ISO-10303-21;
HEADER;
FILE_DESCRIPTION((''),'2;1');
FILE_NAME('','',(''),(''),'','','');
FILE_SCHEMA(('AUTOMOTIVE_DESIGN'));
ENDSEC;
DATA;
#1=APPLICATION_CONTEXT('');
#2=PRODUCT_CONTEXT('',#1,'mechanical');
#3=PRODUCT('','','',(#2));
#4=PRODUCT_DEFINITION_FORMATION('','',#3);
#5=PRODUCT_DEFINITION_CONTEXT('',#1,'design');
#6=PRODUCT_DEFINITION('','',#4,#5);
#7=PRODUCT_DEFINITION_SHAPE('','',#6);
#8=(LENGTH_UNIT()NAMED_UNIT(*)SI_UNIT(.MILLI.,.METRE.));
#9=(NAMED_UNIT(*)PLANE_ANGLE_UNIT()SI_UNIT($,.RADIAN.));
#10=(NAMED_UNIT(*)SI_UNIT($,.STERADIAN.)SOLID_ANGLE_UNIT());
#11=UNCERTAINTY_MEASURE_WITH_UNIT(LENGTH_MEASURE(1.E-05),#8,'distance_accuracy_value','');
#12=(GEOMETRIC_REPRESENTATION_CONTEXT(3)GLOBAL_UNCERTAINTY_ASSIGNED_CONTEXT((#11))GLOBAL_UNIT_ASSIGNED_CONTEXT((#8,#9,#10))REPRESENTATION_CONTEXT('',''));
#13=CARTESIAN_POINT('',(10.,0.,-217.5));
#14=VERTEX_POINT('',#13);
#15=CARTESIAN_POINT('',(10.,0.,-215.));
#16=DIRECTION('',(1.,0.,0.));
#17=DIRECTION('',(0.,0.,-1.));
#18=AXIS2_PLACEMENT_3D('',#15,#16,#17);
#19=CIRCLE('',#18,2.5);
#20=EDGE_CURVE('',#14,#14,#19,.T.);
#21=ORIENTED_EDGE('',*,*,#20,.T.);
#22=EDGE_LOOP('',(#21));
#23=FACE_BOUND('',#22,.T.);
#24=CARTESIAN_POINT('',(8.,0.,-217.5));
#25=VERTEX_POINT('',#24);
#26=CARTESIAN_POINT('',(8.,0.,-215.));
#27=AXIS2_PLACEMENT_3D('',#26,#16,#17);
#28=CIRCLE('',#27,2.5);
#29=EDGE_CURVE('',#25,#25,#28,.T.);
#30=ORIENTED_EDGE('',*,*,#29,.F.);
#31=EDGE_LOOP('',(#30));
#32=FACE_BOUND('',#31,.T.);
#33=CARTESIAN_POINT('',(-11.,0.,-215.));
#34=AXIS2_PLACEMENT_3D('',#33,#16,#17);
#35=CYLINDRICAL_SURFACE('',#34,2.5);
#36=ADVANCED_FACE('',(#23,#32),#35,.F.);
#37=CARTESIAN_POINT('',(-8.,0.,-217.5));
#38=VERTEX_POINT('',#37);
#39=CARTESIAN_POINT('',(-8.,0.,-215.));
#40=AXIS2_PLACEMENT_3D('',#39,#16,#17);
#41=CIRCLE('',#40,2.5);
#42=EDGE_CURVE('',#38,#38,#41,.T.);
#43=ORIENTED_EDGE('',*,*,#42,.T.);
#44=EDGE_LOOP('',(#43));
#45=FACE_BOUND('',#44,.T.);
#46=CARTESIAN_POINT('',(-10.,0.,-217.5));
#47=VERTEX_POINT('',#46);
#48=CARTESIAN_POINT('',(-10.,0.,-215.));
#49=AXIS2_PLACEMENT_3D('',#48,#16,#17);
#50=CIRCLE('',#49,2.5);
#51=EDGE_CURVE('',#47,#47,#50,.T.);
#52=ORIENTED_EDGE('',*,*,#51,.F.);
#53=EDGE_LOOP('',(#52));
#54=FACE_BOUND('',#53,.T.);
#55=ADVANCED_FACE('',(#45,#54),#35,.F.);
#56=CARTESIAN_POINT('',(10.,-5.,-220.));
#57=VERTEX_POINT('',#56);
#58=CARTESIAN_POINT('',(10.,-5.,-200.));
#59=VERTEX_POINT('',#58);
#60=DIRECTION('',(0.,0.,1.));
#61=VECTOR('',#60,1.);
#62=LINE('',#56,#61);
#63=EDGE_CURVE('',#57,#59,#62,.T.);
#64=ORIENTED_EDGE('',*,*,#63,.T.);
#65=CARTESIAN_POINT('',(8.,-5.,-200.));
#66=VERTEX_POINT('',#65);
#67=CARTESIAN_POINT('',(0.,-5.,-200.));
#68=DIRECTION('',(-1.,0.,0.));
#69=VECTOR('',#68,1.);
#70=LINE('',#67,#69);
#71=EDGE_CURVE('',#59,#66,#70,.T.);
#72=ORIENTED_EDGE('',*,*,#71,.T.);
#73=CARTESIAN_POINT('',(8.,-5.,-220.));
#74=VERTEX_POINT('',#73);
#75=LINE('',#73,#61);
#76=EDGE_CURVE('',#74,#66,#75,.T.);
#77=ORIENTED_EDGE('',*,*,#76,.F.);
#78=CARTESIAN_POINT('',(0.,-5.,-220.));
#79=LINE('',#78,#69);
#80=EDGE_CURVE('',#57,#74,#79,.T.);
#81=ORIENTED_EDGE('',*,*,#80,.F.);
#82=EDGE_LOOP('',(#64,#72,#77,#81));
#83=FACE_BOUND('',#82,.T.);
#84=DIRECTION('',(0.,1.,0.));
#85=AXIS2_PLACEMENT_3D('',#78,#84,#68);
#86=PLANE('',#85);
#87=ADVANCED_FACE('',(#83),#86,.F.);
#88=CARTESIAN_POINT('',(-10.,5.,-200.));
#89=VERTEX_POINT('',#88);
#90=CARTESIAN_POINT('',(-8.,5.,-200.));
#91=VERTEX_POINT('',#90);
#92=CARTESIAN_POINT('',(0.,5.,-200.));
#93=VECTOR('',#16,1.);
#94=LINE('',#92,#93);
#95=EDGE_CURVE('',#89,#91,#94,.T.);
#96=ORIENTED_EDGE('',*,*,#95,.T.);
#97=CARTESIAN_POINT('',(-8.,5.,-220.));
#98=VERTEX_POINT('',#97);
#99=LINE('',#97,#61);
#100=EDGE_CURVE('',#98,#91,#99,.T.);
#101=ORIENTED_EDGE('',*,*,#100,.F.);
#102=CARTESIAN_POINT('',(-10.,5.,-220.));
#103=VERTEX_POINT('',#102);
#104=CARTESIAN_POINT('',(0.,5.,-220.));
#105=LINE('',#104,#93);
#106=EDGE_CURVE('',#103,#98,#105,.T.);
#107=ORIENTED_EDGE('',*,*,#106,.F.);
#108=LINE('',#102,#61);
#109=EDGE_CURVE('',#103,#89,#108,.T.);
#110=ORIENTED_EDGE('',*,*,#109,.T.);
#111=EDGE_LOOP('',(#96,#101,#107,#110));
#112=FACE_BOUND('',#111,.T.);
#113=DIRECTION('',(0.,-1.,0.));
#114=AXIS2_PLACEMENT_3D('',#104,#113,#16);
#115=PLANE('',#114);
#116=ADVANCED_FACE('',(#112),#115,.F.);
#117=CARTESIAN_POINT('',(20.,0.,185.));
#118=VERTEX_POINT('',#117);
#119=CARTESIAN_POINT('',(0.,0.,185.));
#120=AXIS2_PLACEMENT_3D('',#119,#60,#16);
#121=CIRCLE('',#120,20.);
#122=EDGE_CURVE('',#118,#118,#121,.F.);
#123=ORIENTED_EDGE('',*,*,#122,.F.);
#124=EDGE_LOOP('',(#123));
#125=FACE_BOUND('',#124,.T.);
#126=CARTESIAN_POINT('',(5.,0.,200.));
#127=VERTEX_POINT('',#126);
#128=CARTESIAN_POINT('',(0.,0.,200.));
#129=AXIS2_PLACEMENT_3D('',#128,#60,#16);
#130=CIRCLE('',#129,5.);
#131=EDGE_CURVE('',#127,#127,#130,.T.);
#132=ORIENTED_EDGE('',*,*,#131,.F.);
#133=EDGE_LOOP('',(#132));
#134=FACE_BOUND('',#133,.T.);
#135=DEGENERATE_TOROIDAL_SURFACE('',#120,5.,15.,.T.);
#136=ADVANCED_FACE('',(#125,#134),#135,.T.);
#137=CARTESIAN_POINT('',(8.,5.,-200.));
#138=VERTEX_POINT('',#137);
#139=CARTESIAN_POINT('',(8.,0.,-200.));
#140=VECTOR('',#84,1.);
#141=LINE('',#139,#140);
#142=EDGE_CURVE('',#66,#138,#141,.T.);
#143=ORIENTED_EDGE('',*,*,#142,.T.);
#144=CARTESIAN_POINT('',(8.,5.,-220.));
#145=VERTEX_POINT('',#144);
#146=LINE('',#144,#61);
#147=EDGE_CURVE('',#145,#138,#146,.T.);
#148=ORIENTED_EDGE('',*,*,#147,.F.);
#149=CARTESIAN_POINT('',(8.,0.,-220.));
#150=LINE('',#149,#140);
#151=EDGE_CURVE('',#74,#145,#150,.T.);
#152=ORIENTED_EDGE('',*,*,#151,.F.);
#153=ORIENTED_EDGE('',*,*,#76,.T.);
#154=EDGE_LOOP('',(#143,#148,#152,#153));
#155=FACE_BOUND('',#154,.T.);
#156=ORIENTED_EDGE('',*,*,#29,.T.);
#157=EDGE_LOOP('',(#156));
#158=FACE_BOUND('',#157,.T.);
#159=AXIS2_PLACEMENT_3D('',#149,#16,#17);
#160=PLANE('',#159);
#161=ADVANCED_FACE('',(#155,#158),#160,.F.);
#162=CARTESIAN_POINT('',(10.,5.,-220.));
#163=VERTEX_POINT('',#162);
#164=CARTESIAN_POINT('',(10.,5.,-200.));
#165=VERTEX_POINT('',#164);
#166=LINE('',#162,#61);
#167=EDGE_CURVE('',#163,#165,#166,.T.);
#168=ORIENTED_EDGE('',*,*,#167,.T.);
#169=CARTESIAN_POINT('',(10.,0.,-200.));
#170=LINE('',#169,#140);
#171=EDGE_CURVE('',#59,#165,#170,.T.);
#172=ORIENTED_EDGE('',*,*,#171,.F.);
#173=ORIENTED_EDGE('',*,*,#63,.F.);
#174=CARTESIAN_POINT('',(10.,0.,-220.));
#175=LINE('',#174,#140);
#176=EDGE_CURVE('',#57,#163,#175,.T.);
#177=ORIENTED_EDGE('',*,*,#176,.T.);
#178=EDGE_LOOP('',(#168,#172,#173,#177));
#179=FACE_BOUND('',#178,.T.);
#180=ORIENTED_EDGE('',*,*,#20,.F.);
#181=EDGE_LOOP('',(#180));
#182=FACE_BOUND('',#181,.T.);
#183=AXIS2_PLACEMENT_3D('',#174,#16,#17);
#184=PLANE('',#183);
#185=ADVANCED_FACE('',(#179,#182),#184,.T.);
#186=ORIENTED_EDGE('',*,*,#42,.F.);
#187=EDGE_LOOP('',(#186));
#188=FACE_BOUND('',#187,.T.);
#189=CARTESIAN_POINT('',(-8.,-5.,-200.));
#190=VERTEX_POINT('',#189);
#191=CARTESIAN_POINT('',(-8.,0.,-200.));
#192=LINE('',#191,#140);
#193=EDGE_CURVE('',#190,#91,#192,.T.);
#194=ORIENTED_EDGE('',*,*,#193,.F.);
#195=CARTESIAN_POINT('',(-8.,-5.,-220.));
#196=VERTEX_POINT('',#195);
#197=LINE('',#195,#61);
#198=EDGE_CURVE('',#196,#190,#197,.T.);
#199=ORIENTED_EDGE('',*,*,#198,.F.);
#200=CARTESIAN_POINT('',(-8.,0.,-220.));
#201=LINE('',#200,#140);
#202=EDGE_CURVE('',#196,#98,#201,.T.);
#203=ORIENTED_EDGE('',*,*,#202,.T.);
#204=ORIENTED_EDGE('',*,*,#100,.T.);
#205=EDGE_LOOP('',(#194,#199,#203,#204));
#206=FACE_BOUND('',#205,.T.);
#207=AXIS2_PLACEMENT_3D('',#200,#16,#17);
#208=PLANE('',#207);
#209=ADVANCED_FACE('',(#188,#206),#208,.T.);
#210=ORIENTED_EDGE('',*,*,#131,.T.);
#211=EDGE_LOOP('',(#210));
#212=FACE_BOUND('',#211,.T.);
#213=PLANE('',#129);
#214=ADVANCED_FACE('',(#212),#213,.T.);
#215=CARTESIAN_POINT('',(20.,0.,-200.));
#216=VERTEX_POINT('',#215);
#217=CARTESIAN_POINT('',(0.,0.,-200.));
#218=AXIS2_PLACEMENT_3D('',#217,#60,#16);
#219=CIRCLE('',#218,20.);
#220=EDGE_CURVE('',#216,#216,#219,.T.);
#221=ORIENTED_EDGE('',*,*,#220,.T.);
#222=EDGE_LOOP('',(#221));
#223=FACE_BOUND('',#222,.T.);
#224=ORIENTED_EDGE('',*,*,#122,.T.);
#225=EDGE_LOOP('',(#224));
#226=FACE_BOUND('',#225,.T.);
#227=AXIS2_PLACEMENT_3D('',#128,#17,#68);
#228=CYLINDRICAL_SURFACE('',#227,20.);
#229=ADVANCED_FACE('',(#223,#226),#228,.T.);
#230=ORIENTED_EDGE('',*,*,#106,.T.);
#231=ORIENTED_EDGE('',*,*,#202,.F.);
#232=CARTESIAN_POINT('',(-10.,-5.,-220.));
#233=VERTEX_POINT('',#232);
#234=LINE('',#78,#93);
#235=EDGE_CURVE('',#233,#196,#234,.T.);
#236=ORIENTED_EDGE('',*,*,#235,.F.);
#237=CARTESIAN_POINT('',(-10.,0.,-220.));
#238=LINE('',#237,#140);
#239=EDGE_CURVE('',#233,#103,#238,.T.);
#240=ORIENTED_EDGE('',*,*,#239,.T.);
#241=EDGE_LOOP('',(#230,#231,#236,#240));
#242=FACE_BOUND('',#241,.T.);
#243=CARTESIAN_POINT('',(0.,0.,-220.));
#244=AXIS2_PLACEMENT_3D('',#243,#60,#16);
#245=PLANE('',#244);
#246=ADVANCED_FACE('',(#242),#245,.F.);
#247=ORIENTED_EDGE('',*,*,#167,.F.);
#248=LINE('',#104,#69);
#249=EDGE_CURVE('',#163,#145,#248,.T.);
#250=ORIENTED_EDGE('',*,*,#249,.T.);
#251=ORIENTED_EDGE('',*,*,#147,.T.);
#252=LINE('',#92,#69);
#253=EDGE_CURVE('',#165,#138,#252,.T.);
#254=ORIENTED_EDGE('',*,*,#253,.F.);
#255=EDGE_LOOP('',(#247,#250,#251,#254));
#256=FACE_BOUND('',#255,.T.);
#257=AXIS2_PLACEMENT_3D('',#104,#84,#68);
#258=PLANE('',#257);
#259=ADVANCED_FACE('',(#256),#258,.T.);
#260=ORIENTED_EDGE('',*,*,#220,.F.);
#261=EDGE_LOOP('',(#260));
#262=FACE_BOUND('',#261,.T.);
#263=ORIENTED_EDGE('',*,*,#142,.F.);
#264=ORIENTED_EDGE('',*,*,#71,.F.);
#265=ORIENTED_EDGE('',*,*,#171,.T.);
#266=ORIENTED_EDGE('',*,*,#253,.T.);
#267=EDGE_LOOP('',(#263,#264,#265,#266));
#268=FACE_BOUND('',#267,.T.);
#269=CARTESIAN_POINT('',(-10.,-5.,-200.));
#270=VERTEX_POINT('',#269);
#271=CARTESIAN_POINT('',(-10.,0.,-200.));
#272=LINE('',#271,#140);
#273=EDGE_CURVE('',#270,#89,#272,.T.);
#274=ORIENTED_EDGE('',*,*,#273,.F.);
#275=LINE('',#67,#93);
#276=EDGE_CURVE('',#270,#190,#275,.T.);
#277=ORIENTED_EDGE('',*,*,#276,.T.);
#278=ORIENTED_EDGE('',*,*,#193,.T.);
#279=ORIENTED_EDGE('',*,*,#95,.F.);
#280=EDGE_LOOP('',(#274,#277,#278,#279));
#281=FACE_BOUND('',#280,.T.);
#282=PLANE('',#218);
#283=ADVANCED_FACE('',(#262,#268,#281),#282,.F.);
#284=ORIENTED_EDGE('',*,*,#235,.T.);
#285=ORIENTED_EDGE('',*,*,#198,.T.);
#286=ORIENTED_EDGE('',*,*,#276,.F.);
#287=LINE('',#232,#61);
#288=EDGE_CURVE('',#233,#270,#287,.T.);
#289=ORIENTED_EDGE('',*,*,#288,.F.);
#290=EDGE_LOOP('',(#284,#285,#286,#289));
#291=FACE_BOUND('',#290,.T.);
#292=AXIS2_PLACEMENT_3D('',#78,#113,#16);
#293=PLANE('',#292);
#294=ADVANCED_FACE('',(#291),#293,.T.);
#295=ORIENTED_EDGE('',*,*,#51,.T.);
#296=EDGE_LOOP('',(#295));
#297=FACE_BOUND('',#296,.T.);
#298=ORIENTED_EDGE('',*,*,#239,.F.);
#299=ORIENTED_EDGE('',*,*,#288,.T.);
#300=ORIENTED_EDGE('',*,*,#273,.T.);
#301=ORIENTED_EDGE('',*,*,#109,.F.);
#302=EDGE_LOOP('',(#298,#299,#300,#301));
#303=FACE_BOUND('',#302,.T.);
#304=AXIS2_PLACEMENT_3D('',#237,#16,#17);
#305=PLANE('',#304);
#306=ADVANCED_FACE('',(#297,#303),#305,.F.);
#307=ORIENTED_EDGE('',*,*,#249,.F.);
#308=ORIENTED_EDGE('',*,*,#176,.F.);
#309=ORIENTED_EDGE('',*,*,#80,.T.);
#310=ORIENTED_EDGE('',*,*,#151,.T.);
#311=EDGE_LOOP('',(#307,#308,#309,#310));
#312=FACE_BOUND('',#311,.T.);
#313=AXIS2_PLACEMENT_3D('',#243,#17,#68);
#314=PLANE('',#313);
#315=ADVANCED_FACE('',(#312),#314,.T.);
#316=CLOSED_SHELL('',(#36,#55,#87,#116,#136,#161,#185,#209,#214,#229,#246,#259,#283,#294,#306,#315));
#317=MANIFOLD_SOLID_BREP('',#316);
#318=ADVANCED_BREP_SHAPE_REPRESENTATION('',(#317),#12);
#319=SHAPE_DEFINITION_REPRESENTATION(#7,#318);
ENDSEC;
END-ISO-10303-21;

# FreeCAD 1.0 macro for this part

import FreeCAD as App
import Part
import Sketcher

V = App.Vector
Q = App.Units.Quantity


def edges_at(feature, points):
    """Names of the edges that pass closest to the given points."""
    edges = feature.Shape.Edges
    near = lambda p: min(range(len(edges)), key=lambda i: edges[i].distToShape(Part.Vertex(*p))[0])
    return sorted({f"Edge{near(p) + 1}" for p in points})

doc = App.newDocument("Part")
body = doc.addObject("PartDesign::Body", "Body")

sketch1 = body.newObject("Sketcher::SketchObject", "Sketch")
sketch1.AttachmentSupport = (doc.getObject("XY_Plane"), [""])
sketch1.MapMode = "FlatFace"
sketch1.addGeometry(Part.Circle(V(0, 0, 0), V(0, 0, 1), 20), False)
sketch1.addConstraint([
    Sketcher.Constraint("Coincident", 0, 3, -1, 1),
    Sketcher.Constraint("Diameter", 0, Q("40 mm")),
])
pad1 = body.newObject("PartDesign::Pad", "Pad")
pad1.Profile = sketch1
pad1.Length = 400
pad1.Midplane = True
doc.recompute()

fillet = body.newObject("PartDesign::Fillet", "Fillet")
fillet.Base = (pad1, edges_at(pad1, [(-20, 0, 200)]))
fillet.Radius = 15

sketch2 = body.newObject("Sketcher::SketchObject", "Sketch001")
sketch2.AttachmentSupport = (doc.getObject("XY_Plane"), [""])
sketch2.MapMode = "FlatFace"
sketch2.AttachmentOffset = App.Placement(V(0, 0, -200), App.Rotation())
sketch2.addGeometry([
    Part.LineSegment(V(-10, 5, 0), V(-10, -5, 0)),
    Part.LineSegment(V(-10, -5, 0), V(-8, -5, 0)),
    Part.LineSegment(V(-8, -5, 0), V(-8, 5, 0)),
    Part.LineSegment(V(-8, 5, 0), V(-10, 5, 0)),
    Part.LineSegment(V(8, 5, 0), V(8, -5, 0)),
    Part.LineSegment(V(8, -5, 0), V(10, -5, 0)),
    Part.LineSegment(V(10, -5, 0), V(10, 5, 0)),
    Part.LineSegment(V(10, 5, 0), V(8, 5, 0)),
], False)
sketch2.addConstraint([
    Sketcher.Constraint("Coincident", 0, 2, 1, 1),
    Sketcher.Constraint("Coincident", 1, 2, 2, 1),
    Sketcher.Constraint("Coincident", 2, 2, 3, 1),
    Sketcher.Constraint("Coincident", 3, 2, 0, 1),
    Sketcher.Constraint("Coincident", 4, 2, 5, 1),
    Sketcher.Constraint("Coincident", 5, 2, 6, 1),
    Sketcher.Constraint("Coincident", 6, 2, 7, 1),
    Sketcher.Constraint("Coincident", 7, 2, 4, 1),
    Sketcher.Constraint("Vertical", 0),
    Sketcher.Constraint("Horizontal", 1),
    Sketcher.Constraint("Vertical", 2),
    Sketcher.Constraint("Horizontal", 3),
    Sketcher.Constraint("Vertical", 4),
    Sketcher.Constraint("Horizontal", 5),
    Sketcher.Constraint("Vertical", 6),
    Sketcher.Constraint("Horizontal", 7),
    Sketcher.Constraint("Symmetric", 2, 2, 4, 2, -1, 1),
    Sketcher.Constraint("Symmetric", 0, 2, 6, 2, -1, 1),
    Sketcher.Constraint("Horizontal", 1, 2, 4, 2),
    Sketcher.Constraint("DistanceX", 1, 1, 1, 2, Q("2 mm")),
    Sketcher.Constraint("DistanceY", 0, 2, 0, 1, Q("10 mm")),
    Sketcher.Constraint("DistanceX", 0, 2, -1, 1, Q("10 mm")),
])
pad2 = body.newObject("PartDesign::Pad", "Pad001")
pad2.Profile = sketch2
pad2.Length = 20
pad2.Reversed = True

sketch3 = body.newObject("Sketcher::SketchObject", "Sketch002")
sketch3.AttachmentSupport = (doc.getObject("YZ_Plane"), [""])
sketch3.MapMode = "FlatFace"
sketch3.addGeometry(Part.Circle(V(0, -215, 0), V(0, 0, 1), 2.5), False)
sketch3.addConstraint([
    Sketcher.Constraint("PointOnObject", 0, 3, -2),
    Sketcher.Constraint("Diameter", 0, Q("5 mm")),
    Sketcher.Constraint("DistanceY", 0, 3, -1, 1, Q("215 mm")),
])
pocket1 = body.newObject("PartDesign::Pocket", "Pocket")
pocket1.Profile = sketch3
pocket1.Length = 22
pocket1.Midplane = True

doc.recompute()
